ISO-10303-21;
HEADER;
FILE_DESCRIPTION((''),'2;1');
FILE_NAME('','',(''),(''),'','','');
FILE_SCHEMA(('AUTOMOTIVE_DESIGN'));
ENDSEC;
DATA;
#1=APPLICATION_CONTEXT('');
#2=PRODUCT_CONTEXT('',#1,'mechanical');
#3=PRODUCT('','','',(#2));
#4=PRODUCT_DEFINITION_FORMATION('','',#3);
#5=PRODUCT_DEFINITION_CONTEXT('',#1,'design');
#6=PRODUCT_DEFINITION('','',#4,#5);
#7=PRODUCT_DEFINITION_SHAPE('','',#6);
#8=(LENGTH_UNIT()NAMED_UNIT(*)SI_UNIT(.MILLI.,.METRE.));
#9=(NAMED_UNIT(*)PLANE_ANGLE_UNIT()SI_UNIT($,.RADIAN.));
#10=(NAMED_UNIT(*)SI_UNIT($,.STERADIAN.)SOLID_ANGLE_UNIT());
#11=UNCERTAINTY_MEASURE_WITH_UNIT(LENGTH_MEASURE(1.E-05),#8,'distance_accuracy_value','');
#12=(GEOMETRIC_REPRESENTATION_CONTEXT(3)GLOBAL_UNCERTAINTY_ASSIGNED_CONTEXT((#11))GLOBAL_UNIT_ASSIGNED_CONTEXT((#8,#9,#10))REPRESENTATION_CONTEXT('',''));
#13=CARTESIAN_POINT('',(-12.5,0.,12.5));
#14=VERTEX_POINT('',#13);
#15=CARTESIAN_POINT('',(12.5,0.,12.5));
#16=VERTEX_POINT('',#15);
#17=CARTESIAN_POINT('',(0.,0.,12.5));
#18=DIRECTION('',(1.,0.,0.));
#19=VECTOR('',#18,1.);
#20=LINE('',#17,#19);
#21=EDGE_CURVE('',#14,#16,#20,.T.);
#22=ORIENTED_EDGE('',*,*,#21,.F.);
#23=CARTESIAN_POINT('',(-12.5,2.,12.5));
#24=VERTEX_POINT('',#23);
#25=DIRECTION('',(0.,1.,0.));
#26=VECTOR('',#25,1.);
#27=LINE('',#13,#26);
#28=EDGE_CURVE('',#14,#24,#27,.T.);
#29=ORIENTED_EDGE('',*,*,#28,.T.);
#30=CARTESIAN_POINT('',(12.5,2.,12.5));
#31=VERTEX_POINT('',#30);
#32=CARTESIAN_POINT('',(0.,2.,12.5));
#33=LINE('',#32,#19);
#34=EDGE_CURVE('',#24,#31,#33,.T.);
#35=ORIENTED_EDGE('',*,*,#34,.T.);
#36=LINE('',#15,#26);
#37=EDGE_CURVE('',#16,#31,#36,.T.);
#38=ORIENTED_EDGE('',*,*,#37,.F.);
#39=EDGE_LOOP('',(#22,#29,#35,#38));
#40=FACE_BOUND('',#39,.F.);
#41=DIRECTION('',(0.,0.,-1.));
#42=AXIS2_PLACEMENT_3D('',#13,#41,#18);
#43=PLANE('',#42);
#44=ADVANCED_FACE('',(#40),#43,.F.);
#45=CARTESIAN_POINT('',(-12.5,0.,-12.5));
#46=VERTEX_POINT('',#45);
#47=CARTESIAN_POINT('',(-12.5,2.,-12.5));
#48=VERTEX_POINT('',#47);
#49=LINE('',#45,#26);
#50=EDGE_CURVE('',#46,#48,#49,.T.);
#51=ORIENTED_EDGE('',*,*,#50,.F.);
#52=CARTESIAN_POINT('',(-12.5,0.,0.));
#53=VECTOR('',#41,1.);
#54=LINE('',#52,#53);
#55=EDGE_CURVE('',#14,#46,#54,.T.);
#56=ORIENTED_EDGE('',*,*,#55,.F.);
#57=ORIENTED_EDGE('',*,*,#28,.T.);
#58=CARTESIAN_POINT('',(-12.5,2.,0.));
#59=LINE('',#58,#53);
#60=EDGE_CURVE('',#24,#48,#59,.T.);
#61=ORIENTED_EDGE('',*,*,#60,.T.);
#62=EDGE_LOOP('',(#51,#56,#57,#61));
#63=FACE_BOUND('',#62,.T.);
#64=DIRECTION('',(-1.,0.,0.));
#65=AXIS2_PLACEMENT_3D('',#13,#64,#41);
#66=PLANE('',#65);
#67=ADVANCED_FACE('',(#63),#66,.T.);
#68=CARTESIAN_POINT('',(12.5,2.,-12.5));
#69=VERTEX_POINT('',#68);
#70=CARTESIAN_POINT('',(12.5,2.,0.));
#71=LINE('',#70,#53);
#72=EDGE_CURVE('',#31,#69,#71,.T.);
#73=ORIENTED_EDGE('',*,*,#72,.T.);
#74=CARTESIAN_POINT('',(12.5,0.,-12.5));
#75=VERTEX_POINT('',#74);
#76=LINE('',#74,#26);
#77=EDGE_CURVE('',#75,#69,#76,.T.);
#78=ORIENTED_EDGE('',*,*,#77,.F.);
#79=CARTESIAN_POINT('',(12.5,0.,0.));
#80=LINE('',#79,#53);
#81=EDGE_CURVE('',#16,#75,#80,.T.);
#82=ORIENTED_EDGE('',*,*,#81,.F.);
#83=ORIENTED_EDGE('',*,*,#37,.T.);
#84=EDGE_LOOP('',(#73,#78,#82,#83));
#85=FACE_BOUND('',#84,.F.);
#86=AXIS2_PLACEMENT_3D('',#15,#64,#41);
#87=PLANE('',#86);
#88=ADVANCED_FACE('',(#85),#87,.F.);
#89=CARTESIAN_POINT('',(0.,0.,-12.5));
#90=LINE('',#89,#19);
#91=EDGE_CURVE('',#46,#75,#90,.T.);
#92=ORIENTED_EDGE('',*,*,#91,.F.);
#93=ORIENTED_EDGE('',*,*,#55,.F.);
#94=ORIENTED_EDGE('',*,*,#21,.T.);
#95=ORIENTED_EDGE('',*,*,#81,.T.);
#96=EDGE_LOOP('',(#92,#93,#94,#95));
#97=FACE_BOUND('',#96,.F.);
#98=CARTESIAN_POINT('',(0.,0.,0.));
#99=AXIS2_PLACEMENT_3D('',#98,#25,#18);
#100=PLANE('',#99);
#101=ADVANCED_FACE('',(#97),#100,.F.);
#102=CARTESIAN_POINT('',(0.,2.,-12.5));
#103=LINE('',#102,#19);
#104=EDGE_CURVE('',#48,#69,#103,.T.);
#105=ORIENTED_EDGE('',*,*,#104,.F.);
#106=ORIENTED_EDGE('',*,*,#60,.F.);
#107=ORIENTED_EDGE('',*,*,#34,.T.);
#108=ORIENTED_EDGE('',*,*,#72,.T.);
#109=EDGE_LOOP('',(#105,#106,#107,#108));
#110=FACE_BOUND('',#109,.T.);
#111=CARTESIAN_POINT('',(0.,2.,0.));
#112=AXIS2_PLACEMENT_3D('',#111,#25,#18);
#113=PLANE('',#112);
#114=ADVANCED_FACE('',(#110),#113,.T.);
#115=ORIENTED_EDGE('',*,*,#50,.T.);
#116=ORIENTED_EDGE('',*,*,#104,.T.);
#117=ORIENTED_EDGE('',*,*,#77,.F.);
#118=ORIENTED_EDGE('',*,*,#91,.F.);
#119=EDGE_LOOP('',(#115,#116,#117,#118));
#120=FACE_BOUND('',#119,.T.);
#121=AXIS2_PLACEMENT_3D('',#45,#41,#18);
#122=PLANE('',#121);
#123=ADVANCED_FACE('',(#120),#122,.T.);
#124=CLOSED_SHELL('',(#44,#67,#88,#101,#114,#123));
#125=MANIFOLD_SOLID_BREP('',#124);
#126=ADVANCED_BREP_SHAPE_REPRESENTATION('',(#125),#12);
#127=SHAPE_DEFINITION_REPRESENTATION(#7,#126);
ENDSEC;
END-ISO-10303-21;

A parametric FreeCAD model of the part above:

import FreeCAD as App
import Part
import Sketcher

V = App.Vector
Q = App.Units.Quantity

doc = App.newDocument("Part")
body = doc.addObject("PartDesign::Body", "Body")

# Sketch on XZ plane
sketch1 = body.newObject("Sketcher::SketchObject", "Sketch")
sketch1.AttachmentSupport = (doc.getObject("XZ_Plane"), [""])
sketch1.MapMode = "FlatFace"
sketch1.addGeometry([
    Part.LineSegment(V(-12.5, -12.5, 0), V(-12.5, 12.5, 0)),
    Part.LineSegment(V(-12.5, 12.5, 0), V(12.5, 12.5, 0)),
    Part.LineSegment(V(12.5, 12.5, 0), V(12.5, -12.5, 0)),
    Part.LineSegment(V(12.5, -12.5, 0), V(-12.5, -12.5, 0)),
], False)
sketch1.addConstraint([
    Sketcher.Constraint("Coincident", 0, 2, 1, 1),
    Sketcher.Constraint("Coincident", 1, 2, 2, 1),
    Sketcher.Constraint("Coincident", 2, 2, 3, 1),
    Sketcher.Constraint("Coincident", 3, 2, 0, 1),
    Sketcher.Constraint("Vertical", 0),
    Sketcher.Constraint("Horizontal", 1),
    Sketcher.Constraint("Vertical", 2),
    Sketcher.Constraint("Horizontal", 3),
    Sketcher.Constraint("Symmetric", 0, 2, 2, 2, -1, 1),
    Sketcher.Constraint("Equal", 3, 0),
    Sketcher.Constraint("DistanceX", 1, 1, 1, 2, Q("25 mm")),
])
pad1 = body.newObject("PartDesign::Pad", "Pad")
pad1.Profile = sketch1
pad1.Length = 2
pad1.Reversed = True

doc.recompute()
